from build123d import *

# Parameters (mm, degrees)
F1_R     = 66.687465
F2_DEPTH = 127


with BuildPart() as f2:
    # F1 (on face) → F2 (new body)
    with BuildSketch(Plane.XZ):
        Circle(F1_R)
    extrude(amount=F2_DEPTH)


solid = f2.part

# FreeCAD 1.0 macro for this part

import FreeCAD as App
import Part
import Sketcher

V = App.Vector
Q = App.Units.Quantity

doc = App.newDocument("Part")
body = doc.addObject("PartDesign::Body", "Body")

# Sketch on XZ plane
sketch1 = body.newObject("Sketcher::SketchObject", "Sketch")
sketch1.AttachmentSupport = (doc.getObject("XZ_Plane"), [""])
sketch1.MapMode = "FlatFace"
sketch1.addGeometry(Part.Circle(V(0, 0, 0), V(0, 0, 1), 67), False)
sketch1.addConstraint(Sketcher.Constraint("Coincident", 0, 3, -1, 1))
sketch1.addConstraint(Sketcher.Constraint("Diameter", 0, Q("133.37493 mm")))
pad1 = body.newObject("PartDesign::Pad", "Pad")
pad1.Profile = sketch1
pad1.Length = Q("5 in")

doc.recompute()
